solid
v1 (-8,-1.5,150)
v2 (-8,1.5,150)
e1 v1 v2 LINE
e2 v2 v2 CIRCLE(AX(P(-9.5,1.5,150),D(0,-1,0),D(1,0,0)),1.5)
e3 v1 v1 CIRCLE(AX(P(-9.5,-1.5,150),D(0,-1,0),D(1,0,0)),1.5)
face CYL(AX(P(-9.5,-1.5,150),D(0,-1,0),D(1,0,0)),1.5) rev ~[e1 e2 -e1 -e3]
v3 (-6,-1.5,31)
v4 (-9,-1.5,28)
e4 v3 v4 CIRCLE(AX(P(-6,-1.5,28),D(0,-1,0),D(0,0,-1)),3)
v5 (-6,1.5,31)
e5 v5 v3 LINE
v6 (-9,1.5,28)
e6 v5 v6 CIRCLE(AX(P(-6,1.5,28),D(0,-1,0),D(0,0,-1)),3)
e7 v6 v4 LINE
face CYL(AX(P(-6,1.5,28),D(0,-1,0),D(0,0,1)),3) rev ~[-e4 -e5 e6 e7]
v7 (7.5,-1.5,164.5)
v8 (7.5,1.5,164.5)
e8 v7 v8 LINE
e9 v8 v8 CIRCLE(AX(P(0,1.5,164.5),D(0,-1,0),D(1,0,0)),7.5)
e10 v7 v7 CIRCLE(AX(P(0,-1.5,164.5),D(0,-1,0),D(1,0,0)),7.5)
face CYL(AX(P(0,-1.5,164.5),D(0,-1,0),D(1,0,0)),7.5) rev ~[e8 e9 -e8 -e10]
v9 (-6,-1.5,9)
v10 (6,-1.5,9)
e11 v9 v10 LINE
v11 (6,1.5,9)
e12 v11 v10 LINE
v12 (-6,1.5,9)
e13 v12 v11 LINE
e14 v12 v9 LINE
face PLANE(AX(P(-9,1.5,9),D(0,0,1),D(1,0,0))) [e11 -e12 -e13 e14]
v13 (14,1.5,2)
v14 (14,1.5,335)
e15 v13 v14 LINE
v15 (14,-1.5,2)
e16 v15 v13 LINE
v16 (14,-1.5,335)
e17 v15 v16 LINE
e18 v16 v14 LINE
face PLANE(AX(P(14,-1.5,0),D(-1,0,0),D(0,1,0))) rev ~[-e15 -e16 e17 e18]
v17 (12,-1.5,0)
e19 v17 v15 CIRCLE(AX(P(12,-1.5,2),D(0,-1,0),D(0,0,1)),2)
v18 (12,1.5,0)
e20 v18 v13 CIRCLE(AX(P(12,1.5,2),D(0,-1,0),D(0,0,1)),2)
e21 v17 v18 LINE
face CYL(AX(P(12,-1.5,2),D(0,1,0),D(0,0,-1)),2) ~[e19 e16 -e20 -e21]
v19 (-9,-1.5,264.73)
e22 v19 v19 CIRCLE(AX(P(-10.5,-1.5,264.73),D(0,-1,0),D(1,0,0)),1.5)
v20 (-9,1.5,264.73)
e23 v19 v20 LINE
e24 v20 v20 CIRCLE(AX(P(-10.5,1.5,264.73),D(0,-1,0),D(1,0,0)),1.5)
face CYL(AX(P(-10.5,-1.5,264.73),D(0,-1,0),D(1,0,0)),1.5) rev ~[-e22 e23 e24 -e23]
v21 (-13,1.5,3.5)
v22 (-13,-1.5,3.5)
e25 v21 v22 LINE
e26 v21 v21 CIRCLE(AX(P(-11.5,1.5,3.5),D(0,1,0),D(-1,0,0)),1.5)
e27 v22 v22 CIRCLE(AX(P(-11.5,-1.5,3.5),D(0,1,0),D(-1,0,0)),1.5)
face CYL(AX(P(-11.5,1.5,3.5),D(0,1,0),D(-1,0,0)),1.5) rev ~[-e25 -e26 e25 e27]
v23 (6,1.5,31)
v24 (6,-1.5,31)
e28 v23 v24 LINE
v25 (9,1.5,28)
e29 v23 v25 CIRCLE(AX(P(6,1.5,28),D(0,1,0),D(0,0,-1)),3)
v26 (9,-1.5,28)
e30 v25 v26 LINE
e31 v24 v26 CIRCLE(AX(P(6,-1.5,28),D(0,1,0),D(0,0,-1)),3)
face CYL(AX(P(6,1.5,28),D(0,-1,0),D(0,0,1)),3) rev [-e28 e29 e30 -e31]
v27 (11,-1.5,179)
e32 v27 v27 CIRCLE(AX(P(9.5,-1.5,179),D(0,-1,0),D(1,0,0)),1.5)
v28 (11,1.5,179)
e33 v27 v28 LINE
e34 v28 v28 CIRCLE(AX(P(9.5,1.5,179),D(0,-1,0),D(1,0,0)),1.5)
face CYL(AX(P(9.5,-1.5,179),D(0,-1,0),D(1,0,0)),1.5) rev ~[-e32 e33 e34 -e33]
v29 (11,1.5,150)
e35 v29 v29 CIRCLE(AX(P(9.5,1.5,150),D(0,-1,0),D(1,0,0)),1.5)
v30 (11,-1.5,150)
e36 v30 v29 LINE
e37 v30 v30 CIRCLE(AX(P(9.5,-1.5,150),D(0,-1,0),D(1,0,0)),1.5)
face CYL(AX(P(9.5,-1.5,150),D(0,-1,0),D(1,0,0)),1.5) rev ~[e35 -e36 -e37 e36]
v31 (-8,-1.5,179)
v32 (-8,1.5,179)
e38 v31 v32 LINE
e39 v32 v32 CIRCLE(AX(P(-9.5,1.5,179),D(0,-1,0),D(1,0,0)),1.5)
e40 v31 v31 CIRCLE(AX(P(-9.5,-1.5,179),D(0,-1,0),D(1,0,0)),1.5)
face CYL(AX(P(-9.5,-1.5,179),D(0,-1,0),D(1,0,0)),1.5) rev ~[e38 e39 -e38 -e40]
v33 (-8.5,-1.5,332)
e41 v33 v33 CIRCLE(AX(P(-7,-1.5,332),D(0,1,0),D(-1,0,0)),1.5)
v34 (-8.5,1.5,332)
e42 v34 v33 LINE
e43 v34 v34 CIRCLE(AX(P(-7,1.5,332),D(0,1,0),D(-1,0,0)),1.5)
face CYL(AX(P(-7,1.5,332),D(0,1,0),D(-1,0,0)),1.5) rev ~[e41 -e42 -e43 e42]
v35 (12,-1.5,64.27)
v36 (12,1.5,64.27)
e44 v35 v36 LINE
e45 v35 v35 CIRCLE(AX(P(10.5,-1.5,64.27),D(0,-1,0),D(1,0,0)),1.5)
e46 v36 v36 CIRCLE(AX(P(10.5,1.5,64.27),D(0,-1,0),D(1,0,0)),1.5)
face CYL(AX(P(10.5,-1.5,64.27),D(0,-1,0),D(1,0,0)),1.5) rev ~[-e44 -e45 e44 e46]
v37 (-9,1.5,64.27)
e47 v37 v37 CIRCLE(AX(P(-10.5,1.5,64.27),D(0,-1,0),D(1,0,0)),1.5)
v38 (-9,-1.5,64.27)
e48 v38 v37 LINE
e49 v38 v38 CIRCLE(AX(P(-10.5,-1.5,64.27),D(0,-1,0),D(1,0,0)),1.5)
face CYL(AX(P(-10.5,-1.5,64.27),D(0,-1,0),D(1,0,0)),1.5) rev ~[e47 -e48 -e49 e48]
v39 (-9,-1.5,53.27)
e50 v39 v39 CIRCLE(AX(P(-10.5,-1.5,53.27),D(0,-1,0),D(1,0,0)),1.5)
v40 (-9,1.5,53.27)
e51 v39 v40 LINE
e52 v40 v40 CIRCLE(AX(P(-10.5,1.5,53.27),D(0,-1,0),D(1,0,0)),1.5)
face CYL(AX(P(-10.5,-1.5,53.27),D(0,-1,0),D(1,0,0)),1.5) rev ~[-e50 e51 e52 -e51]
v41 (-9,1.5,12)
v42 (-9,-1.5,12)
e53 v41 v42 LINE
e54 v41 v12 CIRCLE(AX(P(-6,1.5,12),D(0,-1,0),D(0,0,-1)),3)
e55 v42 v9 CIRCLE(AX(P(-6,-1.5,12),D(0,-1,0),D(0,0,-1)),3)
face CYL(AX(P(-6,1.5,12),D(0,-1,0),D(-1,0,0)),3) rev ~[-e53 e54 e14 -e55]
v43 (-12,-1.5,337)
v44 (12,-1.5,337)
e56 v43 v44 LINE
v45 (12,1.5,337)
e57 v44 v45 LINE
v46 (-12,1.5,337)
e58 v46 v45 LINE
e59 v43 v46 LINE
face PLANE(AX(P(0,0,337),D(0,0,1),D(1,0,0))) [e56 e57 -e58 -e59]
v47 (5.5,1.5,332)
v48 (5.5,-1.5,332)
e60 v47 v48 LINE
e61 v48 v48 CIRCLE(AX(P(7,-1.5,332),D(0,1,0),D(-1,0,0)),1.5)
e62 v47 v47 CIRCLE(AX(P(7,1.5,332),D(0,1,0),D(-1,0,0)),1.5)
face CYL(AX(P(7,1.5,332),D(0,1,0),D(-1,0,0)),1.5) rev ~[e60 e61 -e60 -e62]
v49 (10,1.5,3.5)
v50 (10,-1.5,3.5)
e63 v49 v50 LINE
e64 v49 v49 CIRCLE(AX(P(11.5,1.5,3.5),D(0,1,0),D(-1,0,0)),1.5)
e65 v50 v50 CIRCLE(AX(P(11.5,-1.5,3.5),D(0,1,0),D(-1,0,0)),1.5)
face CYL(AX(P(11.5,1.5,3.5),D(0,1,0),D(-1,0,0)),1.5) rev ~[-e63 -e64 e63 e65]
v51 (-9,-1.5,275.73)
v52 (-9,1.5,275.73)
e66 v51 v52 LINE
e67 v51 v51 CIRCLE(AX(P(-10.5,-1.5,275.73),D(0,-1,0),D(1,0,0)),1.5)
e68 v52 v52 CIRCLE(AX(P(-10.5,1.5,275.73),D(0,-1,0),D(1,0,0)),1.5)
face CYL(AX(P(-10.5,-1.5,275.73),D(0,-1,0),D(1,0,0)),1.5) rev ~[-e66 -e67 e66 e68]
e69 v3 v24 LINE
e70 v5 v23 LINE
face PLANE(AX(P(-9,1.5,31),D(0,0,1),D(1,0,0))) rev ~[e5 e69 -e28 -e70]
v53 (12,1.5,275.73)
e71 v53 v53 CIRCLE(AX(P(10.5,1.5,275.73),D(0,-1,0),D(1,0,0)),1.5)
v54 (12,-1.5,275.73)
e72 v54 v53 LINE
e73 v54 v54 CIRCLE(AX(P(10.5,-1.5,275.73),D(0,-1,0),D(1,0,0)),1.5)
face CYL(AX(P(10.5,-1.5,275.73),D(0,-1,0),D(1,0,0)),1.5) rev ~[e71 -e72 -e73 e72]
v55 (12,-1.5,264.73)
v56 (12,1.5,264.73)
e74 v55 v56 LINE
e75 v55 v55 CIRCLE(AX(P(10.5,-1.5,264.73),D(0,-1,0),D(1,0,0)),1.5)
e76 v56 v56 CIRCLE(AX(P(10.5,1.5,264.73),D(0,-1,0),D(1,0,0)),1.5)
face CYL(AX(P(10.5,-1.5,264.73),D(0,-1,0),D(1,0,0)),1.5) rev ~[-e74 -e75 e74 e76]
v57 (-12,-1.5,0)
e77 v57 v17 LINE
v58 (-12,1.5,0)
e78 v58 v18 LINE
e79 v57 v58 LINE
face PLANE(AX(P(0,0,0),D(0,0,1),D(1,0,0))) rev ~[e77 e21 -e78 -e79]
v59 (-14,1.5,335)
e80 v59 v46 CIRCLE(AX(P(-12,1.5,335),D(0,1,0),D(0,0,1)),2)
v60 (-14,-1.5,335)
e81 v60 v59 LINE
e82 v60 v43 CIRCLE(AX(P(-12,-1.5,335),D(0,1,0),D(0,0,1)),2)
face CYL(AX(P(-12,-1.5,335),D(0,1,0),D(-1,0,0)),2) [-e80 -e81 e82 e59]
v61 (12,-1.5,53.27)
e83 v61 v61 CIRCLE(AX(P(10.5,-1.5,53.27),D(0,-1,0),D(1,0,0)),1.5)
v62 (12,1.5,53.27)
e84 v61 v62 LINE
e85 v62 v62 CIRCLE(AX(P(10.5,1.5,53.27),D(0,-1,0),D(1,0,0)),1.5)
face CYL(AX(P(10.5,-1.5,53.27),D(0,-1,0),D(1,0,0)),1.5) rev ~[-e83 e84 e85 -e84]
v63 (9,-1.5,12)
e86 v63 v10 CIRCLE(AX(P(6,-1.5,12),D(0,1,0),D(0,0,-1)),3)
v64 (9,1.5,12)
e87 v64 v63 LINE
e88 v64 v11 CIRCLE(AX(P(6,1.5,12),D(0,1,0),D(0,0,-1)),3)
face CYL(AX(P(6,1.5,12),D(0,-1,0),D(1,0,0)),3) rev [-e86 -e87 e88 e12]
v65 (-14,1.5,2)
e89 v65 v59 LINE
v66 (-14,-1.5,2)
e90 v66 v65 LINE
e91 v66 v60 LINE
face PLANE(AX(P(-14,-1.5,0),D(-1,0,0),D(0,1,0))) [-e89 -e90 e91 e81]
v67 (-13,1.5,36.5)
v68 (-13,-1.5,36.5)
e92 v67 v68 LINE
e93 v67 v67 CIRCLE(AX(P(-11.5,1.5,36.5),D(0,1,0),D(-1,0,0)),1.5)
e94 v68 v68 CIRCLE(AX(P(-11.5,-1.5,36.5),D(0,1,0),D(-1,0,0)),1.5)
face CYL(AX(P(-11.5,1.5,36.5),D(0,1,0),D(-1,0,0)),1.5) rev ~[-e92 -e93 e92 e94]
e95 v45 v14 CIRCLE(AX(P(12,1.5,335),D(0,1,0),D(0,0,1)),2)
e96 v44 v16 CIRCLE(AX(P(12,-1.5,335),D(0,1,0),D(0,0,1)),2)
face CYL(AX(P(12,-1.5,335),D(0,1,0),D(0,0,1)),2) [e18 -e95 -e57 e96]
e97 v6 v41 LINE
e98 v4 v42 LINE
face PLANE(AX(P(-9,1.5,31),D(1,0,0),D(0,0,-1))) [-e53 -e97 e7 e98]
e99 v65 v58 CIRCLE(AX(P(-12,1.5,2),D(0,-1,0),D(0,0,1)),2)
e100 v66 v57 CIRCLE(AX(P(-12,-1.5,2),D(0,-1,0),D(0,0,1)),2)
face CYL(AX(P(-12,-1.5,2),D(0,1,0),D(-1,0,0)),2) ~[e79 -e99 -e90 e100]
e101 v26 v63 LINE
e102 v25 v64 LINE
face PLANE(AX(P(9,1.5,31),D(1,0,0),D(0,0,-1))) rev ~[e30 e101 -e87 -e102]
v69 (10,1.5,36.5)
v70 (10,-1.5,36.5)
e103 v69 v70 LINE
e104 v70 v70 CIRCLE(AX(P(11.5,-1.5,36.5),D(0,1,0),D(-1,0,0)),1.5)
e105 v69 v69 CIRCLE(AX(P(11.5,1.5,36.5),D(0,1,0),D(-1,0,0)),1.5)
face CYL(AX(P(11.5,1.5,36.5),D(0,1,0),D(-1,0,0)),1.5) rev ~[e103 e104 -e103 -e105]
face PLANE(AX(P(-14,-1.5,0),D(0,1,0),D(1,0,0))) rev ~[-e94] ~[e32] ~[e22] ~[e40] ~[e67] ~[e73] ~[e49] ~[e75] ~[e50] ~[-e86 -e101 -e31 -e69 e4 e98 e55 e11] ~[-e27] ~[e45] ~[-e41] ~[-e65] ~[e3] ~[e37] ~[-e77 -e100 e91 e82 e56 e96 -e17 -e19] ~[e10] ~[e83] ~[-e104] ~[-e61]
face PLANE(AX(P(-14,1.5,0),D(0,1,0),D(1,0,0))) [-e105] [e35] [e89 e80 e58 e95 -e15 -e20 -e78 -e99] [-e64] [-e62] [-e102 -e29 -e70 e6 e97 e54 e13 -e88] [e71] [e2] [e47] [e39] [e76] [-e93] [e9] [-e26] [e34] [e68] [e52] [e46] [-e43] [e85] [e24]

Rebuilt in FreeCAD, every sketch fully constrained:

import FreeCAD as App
import Part
import Sketcher

V = App.Vector


def edges_at(feature, points):
    """Names of the edges that pass closest to the given points."""
    edges = feature.Shape.Edges
    near = lambda p: min(range(len(edges)), key=lambda i: edges[i].distToShape(Part.Vertex(*p))[0])
    return sorted({f"Edge{near(p) + 1}" for p in points})

doc = App.newDocument("Part")
body = doc.addObject("PartDesign::Body", "Body")

# Sketch on XY plane
sketch1 = body.newObject("Sketcher::SketchObject", "Sketch")
sketch1.AttachmentSupport = (doc.getObject("XY_Plane"), [""])
sketch1.MapMode = "FlatFace"
sketch1.addGeometry(Part.LineSegment(V(-14, 1.5, 0), V(-14, -1.5, 0)), False)
sketch1.addGeometry(Part.LineSegment(V(-14, -1.5, 0), V(14, -1.5, 0)), False)
sketch1.addGeometry(Part.LineSegment(V(14, -1.5, 0), V(14, 1.5, 0)), False)
sketch1.addGeometry(Part.LineSegment(V(14, 1.5, 0), V(-14, 1.5, 0)), False)
sketch1.addConstraint(Sketcher.Constraint("Coincident", 0, 2, 1, 1))
sketch1.addConstraint(Sketcher.Constraint("Coincident", 1, 2, 2, 1))
sketch1.addConstraint(Sketcher.Constraint("Coincident", 2, 2, 3, 1))
sketch1.addConstraint(Sketcher.Constraint("Coincident", 3, 2, 0, 1))
sketch1.addConstraint(Sketcher.Constraint("Vertical", 0))
sketch1.addConstraint(Sketcher.Constraint("Horizontal", 1))
sketch1.addConstraint(Sketcher.Constraint("Vertical", 2))
sketch1.addConstraint(Sketcher.Constraint("Horizontal", 3))
sketch1.addConstraint(Sketcher.Constraint("Symmetric", 0, 2, 2, 2, -1, 1))
sketch1.addConstraint(Sketcher.Constraint("DistanceX", 1, 1, 1, 2, 28.0))
sketch1.addConstraint(Sketcher.Constraint("DistanceY", 0, 2, 0, 1, 3.0))
pad1 = body.newObject("PartDesign::Pad", "Pad")
pad1.Profile = sketch1
pad1.Length = 337

# Sketch on XZ plane
sketch2 = body.newObject("Sketcher::SketchObject", "Sketch001")
sketch2.AttachmentSupport = (doc.getObject("XZ_Plane"), [""])
sketch2.MapMode = "FlatFace"
sketch2.AttachmentOffset = App.Placement(V(0, 0, 1.5), App.Rotation())
sketch2.addGeometry(Part.Circle(V(0, 164.5, 0), V(0, 0, 1), 7.5), False)
sketch2.addGeometry(Part.Circle(V(-9.5, 179, 0), V(0, 0, 1), 1.5), False)
sketch2.addGeometry(Part.Circle(V(9.5, 179, 0), V(0, 0, 1), 1.5), False)
sketch2.addGeometry(Part.Circle(V(9.5, 150, 0), V(0, 0, 1), 1.5), False)
sketch2.addGeometry(Part.Circle(V(-9.5, 150, 0), V(0, 0, 1), 1.5), False)
sketch2.addConstraint(Sketcher.Constraint("Equal", 1, 2))
sketch2.addConstraint(Sketcher.Constraint("Equal", 2, 3))
sketch2.addConstraint(Sketcher.Constraint("Equal", 3, 4))
sketch2.addConstraint(Sketcher.Constraint("Symmetric", 1, 3, 2, 3, -2))
sketch2.addConstraint(Sketcher.Constraint("Symmetric", 3, 3, 4, 3, -2))
sketch2.addConstraint(Sketcher.Constraint("PointOnObject", 0, 3, -2))
sketch2.addConstraint(Sketcher.Constraint("Vertical", 2, 3, 3, 3))
sketch2.addConstraint(Sketcher.Constraint("Diameter", 0, 15.0))
sketch2.addConstraint(Sketcher.Constraint("Diameter", 1, 3.0))
sketch2.addConstraint(Sketcher.Constraint("DistanceY", -1, 1, 1, 3, 179.0))
sketch2.addConstraint(Sketcher.Constraint("DistanceY", -1, 1, 3, 3, 150.0))
sketch2.addConstraint(Sketcher.Constraint("DistanceX", 1, 3, 2, 3, 19.0))
sketch2.addConstraint(Sketcher.Constraint("DistanceY", -1, 1, 0, 3, 164.5))
pocket1 = body.newObject("PartDesign::Pocket", "Pocket")
pocket1.Profile = sketch2
pocket1.Length = 400

# Sketch on XZ plane
sketch3 = body.newObject("Sketcher::SketchObject", "Sketch002")
sketch3.AttachmentSupport = (doc.getObject("XZ_Plane"), [""])
sketch3.MapMode = "FlatFace"
sketch3.AttachmentOffset = App.Placement(V(0, 0, -1.5), App.Rotation())
sketch3.addGeometry(Part.Circle(V(11.5, 3.5, 0), V(0, 0, 1), 1.5), False)
sketch3.addGeometry(Part.Circle(V(-11.5, 3.5, 0), V(0, 0, 1), 1.5), False)
sketch3.addGeometry(Part.Circle(V(-11.5, 36.5, 0), V(0, 0, 1), 1.5), False)
sketch3.addGeometry(Part.Circle(V(11.5, 36.5, 0), V(0, 0, 1), 1.5), False)
sketch3.addGeometry(Part.LineSegment(V(-9, 9, 0), V(-9, 31, 0)), False)
sketch3.addGeometry(Part.LineSegment(V(-9, 31, 0), V(9, 31, 0)), False)
sketch3.addGeometry(Part.LineSegment(V(9, 31, 0), V(9, 9, 0)), False)
sketch3.addGeometry(Part.LineSegment(V(9, 9, 0), V(-9, 9, 0)), False)
sketch3.addConstraint(Sketcher.Constraint("Coincident", 4, 2, 5, 1))
sketch3.addConstraint(Sketcher.Constraint("Coincident", 5, 2, 6, 1))
sketch3.addConstraint(Sketcher.Constraint("Coincident", 6, 2, 7, 1))
sketch3.addConstraint(Sketcher.Constraint("Coincident", 7, 2, 4, 1))
sketch3.addConstraint(Sketcher.Constraint("Vertical", 4))
sketch3.addConstraint(Sketcher.Constraint("Horizontal", 5))
sketch3.addConstraint(Sketcher.Constraint("Vertical", 6))
sketch3.addConstraint(Sketcher.Constraint("Horizontal", 7))
sketch3.addConstraint(Sketcher.Constraint("Equal", 0, 1))
sketch3.addConstraint(Sketcher.Constraint("Equal", 1, 2))
sketch3.addConstraint(Sketcher.Constraint("Equal", 2, 3))
sketch3.addConstraint(Sketcher.Constraint("Symmetric", 0, 3, 1, 3, -2))
sketch3.addConstraint(Sketcher.Constraint("Symmetric", 2, 3, 3, 3, -2))
sketch3.addConstraint(Sketcher.Constraint("Vertical", 1, 3, 2, 3))
sketch3.addConstraint(Sketcher.Constraint("Diameter", 0, 3.0))
sketch3.addConstraint(Sketcher.Constraint("DistanceX", 5, 1, 5, 2, 18.0))
sketch3.addConstraint(Sketcher.Constraint("DistanceY", 4, 1, 4, 2, 22.0))
sketch3.addConstraint(Sketcher.Constraint("DistanceX", 4, 2, -1, 1, 9.0))
sketch3.addConstraint(Sketcher.Constraint("DistanceY", -1, 1, 4, 2, 31.0))
sketch3.addConstraint(Sketcher.Constraint("DistanceX", 1, 3, 0, 3, 23.0))
sketch3.addConstraint(Sketcher.Constraint("DistanceY", 1, 3, 2, 3, 33.0))
sketch3.addConstraint(Sketcher.Constraint("DistanceY", -1, 1, 0, 3, 3.5))
pocket2 = body.newObject("PartDesign::Pocket", "Pocket001")
pocket2.Profile = sketch3
pocket2.Length = 10
pocket2.Reversed = True

# Sketch on XZ plane
sketch4 = body.newObject("Sketcher::SketchObject", "Sketch003")
sketch4.AttachmentSupport = (doc.getObject("XZ_Plane"), [""])
sketch4.MapMode = "FlatFace"
sketch4.AttachmentOffset = App.Placement(V(0, 0, -1.5), App.Rotation())
sketch4.addGeometry(Part.Circle(V(7, 332, 0), V(0, 0, 1), 1.5), False)
sketch4.addGeometry(Part.Circle(V(-7, 332, 0), V(0, 0, 1), 1.5), False)
sketch4.addConstraint(Sketcher.Constraint("Equal", 0, 1))
sketch4.addConstraint(Sketcher.Constraint("Symmetric", 0, 3, 1, 3, -2))
sketch4.addConstraint(Sketcher.Constraint("Diameter", 0, 3.0))
sketch4.addConstraint(Sketcher.Constraint("DistanceX", -1, 1, 0, 3, 7.0))
sketch4.addConstraint(Sketcher.Constraint("DistanceY", -1, 1, 0, 3, 332.0))
pocket3 = body.newObject("PartDesign::Pocket", "Pocket002")
pocket3.Profile = sketch4
pocket3.Length = 10
pocket3.Reversed = True

# Sketch on XZ plane
sketch5 = body.newObject("Sketcher::SketchObject", "Sketch004")
sketch5.AttachmentSupport = (doc.getObject("XZ_Plane"), [""])
sketch5.MapMode = "FlatFace"
sketch5.AttachmentOffset = App.Placement(V(0, 0, 1.5), App.Rotation())
sketch5.addGeometry(Part.Circle(V(-10.5, 264.73, 0), V(0, 0, 1), 1.5), False)
sketch5.addGeometry(Part.Circle(V(-10.5, 275.73, 0), V(0, 0, 1), 1.5), False)
sketch5.addGeometry(Part.Circle(V(10.5, 275.73, 0), V(0, 0, 1), 1.5), False)
sketch5.addGeometry(Part.Circle(V(10.5, 264.73, 0), V(0, 0, 1), 1.5), False)
sketch5.addConstraint(Sketcher.Constraint("Equal", 0, 1))
sketch5.addConstraint(Sketcher.Constraint("Equal", 1, 2))
sketch5.addConstraint(Sketcher.Constraint("Equal", 2, 3))
sketch5.addConstraint(Sketcher.Constraint("Symmetric", 1, 3, 2, 3, -2))
sketch5.addConstraint(Sketcher.Constraint("Symmetric", 0, 3, 3, 3, -2))
sketch5.addConstraint(Sketcher.Constraint("Vertical", 0, 3, 1, 3))
sketch5.addConstraint(Sketcher.Constraint("Diameter", 0, 3.0))
sketch5.addConstraint(Sketcher.Constraint("DistanceY", 0, 3, 1, 3, 11.0))
sketch5.addConstraint(Sketcher.Constraint("DistanceX", 1, 3, 2, 3, 21.0))
sketch5.addConstraint(Sketcher.Constraint("DistanceY", -1, 1, 0, 3, 264.73))
pocket4 = body.newObject("PartDesign::Pocket", "Pocket003")
pocket4.Profile = sketch5
pocket4.Length = 10
doc.recompute()

fillet = body.newObject("PartDesign::Fillet", "Fillet")
fillet.Base = (pocket4, edges_at(pocket4, [
    (-14, 0, 337),
    (14, 0, 337),
    (-14, 0, 0),
    (14, 0, 0),
]))
fillet.Radius = 2
doc.recompute()

fillet2 = body.newObject("PartDesign::Fillet", "Fillet001")
fillet2.Base = (fillet, edges_at(fillet, [
    (9, 0, 9),
    (9, 0, 31),
    (-9, 0, 31),
    (-9, 0, 9),
]))
fillet2.Radius = 3
doc.recompute()

linearpattern = body.newObject("PartDesign::LinearPattern", "LinearPattern")
linearpattern.Originals = [pocket4]
linearpattern.Direction = (doc.getObject("Z_Axis"), [""])
linearpattern.Mode = "offset"
linearpattern.Offset = 211.46
linearpattern.Occurrences = 2
linearpattern.Reversed = True
body.Tip = linearpattern

doc.recompute()
